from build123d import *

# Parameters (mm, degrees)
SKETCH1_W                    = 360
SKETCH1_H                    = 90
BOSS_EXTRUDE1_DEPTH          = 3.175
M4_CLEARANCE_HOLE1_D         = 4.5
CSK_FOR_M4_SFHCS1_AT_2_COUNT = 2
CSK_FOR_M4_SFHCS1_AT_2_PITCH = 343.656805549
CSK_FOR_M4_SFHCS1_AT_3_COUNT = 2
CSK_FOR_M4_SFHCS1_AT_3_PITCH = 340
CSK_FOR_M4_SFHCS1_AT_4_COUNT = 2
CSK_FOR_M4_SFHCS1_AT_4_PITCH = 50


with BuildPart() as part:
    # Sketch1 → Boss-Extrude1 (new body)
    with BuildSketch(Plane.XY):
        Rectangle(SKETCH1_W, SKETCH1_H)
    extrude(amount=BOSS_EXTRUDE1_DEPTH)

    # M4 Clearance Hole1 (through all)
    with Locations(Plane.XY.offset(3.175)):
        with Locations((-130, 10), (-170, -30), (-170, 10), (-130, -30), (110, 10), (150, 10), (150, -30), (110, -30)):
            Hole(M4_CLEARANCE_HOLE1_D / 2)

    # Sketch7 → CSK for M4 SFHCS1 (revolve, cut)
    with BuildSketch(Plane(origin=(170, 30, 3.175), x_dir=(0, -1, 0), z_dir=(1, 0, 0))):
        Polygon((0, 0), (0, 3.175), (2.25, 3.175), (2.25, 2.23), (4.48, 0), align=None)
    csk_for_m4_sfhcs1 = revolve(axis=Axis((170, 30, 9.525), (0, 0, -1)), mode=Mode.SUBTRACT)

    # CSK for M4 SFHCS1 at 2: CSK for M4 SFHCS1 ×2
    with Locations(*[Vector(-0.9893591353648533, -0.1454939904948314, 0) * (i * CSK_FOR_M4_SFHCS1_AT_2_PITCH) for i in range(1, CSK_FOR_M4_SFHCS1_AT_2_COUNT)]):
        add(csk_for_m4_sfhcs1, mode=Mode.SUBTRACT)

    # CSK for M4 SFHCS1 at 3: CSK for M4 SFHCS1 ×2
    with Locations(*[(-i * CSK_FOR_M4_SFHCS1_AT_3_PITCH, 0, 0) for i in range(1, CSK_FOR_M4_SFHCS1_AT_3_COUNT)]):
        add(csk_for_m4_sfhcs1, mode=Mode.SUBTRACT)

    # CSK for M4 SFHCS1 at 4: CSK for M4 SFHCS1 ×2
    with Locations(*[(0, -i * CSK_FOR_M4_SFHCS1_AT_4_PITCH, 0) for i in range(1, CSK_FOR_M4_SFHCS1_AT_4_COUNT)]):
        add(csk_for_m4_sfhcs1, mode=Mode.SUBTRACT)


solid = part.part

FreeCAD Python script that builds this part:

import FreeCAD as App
import Part
import Sketcher
from FreeCAD import Vector
Q = App.Units.Quantity

doc = App.newDocument("Part")
body = doc.addObject("PartDesign::Body", "Body")

sketch1 = body.newObject("Sketcher::SketchObject", "Sketch")
sketch1.AttachmentSupport = (doc.getObject("XY_Plane"), [""])
sketch1.MapMode = "FlatFace"
sketch1.addGeometry([
    Part.LineSegment(Vector(-180, 45, 0), Vector(-180, -45, 0)),
    Part.LineSegment(Vector(-180, -45, 0), Vector(180, -45, 0)),
    Part.LineSegment(Vector(180, -45, 0), Vector(180, 45, 0)),
    Part.LineSegment(Vector(180, 45, 0), Vector(-180, 45, 0)),
], False)
sketch1.addConstraint([
    Sketcher.Constraint("Coincident", 0, 2, 1, 1),
    Sketcher.Constraint("Coincident", 1, 2, 2, 1),
    Sketcher.Constraint("Coincident", 2, 2, 3, 1),
    Sketcher.Constraint("Coincident", 3, 2, 0, 1),
    Sketcher.Constraint("Vertical", 0),
    Sketcher.Constraint("Horizontal", 1),
    Sketcher.Constraint("Vertical", 2),
    Sketcher.Constraint("Horizontal", 3),
    Sketcher.Constraint("Symmetric", 0, 2, 2, 2, -1, 1),
    Sketcher.Constraint("DistanceX", 1, 1, 1, 2, Q("360 mm")),
    Sketcher.Constraint("DistanceY", 0, 2, 0, 1, Q("90 mm")),
])
pad1 = body.newObject("PartDesign::Pad", "Pad")
pad1.Profile = sketch1
pad1.Length = 3.175

sketch2 = body.newObject("Sketcher::SketchObject", "Sketch001")
sketch2.AttachmentSupport = (doc.getObject("XY_Plane"), [""])
sketch2.MapMode = "FlatFace"
sketch2.AttachmentOffset = App.Placement(Vector(0, 0, 3.175), App.Rotation())
sketch2.addGeometry([
    Part.Circle(Vector(-130, 10, 0), Vector(0, 0, 1), 2.2),
    Part.Circle(Vector(-170, -30, 0), Vector(0, 0, 1), 2.2),
    Part.Circle(Vector(-170, 10, 0), Vector(0, 0, 1), 2.2),
    Part.Circle(Vector(-130, -30, 0), Vector(0, 0, 1), 2.2),
    Part.Circle(Vector(110, 10, 0), Vector(0, 0, 1), 2.2),
    Part.Circle(Vector(150, 10, 0), Vector(0, 0, 1), 2.2),
    Part.Circle(Vector(150, -30, 0), Vector(0, 0, 1), 2.2),
    Part.Circle(Vector(110, -30, 0), Vector(0, 0, 1), 2.2),
], False)
sketch2.addConstraint([
    Sketcher.Constraint("Equal", 0, 1),
    Sketcher.Constraint("Equal", 1, 2),
    Sketcher.Constraint("Equal", 2, 3),
    Sketcher.Constraint("Equal", 3, 4),
    Sketcher.Constraint("Equal", 4, 5),
    Sketcher.Constraint("Equal", 5, 6),
    Sketcher.Constraint("Equal", 6, 7),
    Sketcher.Constraint("Horizontal", 0, 3, 2, 3),
    Sketcher.Constraint("Horizontal", 1, 3, 3, 3),
    Sketcher.Constraint("Horizontal", 2, 3, 4, 3),
    Sketcher.Constraint("Horizontal", 4, 3, 5, 3),
    Sketcher.Constraint("Horizontal", 3, 3, 6, 3),
    Sketcher.Constraint("Horizontal", 6, 3, 7, 3),
    Sketcher.Constraint("Vertical", 1, 3, 2, 3),
    Sketcher.Constraint("Vertical", 0, 3, 3, 3),
    Sketcher.Constraint("Vertical", 5, 3, 6, 3),
    Sketcher.Constraint("Vertical", 4, 3, 7, 3),
    Sketcher.Constraint("Diameter", 0, Q("4.5 mm")),
    Sketcher.Constraint("DistanceX", 0, 3, -1, 1, Q("130 mm")),
    Sketcher.Constraint("DistanceY", -1, 1, 0, 3, Q("10 mm")),
    Sketcher.Constraint("DistanceX", 1, 3, -1, 1, Q("170 mm")),
    Sketcher.Constraint("DistanceY", 1, 3, -1, 1, Q("30 mm")),
    Sketcher.Constraint("DistanceX", -1, 1, 4, 3, Q("110 mm")),
    Sketcher.Constraint("DistanceX", -1, 1, 5, 3, Q("150 mm")),
])
doc.recompute()
hole = body.newObject("PartDesign::Hole", "Hole")
hole.Profile = sketch2
hole.ThreadType = "None"
hole.Diameter = 4.5
hole.DepthType = "ThroughAll"

sketch3 = body.newObject("Sketcher::SketchObject", "Sketch002")
sketch3.AttachmentSupport = (doc.getObject("YZ_Plane"), [""])
sketch3.MapMode = "FlatFace"
sketch3.AttachmentOffset = App.Placement(Vector(0, 0, 170), App.Rotation())
sketch3.addGeometry([
    Part.LineSegment(Vector(30, 0, 0), Vector(30, 3.2, 0)),
    Part.LineSegment(Vector(30, 3.2, 0), Vector(25.5, 3.2, 0)),
    Part.LineSegment(Vector(25.5, 3.2, 0), Vector(27.8, 0.9, 0)),
    Part.LineSegment(Vector(27.8, 0.9, 0), Vector(27.8, 0, 0)),
    Part.LineSegment(Vector(27.8, 0, 0), Vector(30, 0, 0)),
], False)
sketch3.addGeometry(Part.LineSegment(Vector(30, 3.2, 0), Vector(30, 0, 0)), True)
sketch3.addConstraint([
    Sketcher.Constraint("Coincident", 0, 2, 1, 1),
    Sketcher.Constraint("Coincident", 1, 2, 2, 1),
    Sketcher.Constraint("Coincident", 2, 2, 3, 1),
    Sketcher.Constraint("Coincident", 3, 2, 4, 1),
    Sketcher.Constraint("Coincident", 4, 2, 0, 1),
    Sketcher.Constraint("Vertical", 0),
    Sketcher.Constraint("Horizontal", 1),
    Sketcher.Constraint("Vertical", 3),
    Sketcher.Constraint("Horizontal", 4),
    Sketcher.Constraint("Vertical", 5),
    Sketcher.Constraint("Coincident", 5, 1, 0, 2),
    Sketcher.Constraint("PointOnObject", 3, 2, -1),
    Sketcher.Constraint("PointOnObject", 5, 2, -1),
    Sketcher.Constraint("Angle", 2, Q("-45 deg")),
    Sketcher.Constraint("DistanceX", -1, 1, 0, 2, Q("30 mm")),
    Sketcher.Constraint("DistanceX", 1, 2, 1, 1, Q("4.48 mm")),
    Sketcher.Constraint("DistanceX", 4, 1, 4, 2, Q("2.25 mm")),
    Sketcher.Constraint("DistanceY", 0, 1, 0, 2, Q("3.175 mm")),
])
groove = body.newObject("PartDesign::Groove", "Groove")
groove.Profile = sketch3
groove.ReferenceAxis = (sketch3, ["Axis0"])
groove.Angle = 360
doc.recompute()

datumline = body.newObject("PartDesign::Line", "DatumLine")
datumline.Placement = App.Placement(Vector(0, 0, 0), App.Rotation(Vector(0, 0, 1), Vector(-0.989359135, -0.14549399, 0)))
linearpattern = body.newObject("PartDesign::LinearPattern", "LinearPattern")
linearpattern.Originals = [groove]
linearpattern.Direction = (datumline, [""])
linearpattern.Mode = "offset"
linearpattern.Offset = 343.656806
linearpattern.Occurrences = 2
body.Tip = linearpattern
doc.recompute()

linearpattern2 = body.newObject("PartDesign::LinearPattern", "LinearPattern001")
linearpattern2.Originals = [groove]
linearpattern2.Direction = (doc.getObject("X_Axis"), [""])
linearpattern2.Mode = "offset"
linearpattern2.Offset = 340
linearpattern2.Occurrences = 2
linearpattern2.Reversed = True
body.Tip = linearpattern2
doc.recompute()

linearpattern3 = body.newObject("PartDesign::LinearPattern", "LinearPattern002")
linearpattern3.Originals = [groove]
linearpattern3.Direction = (doc.getObject("Y_Axis"), [""])
linearpattern3.Mode = "offset"
linearpattern3.Offset = 50
linearpattern3.Occurrences = 2
linearpattern3.Reversed = True
body.Tip = linearpattern3

doc.recompute()
